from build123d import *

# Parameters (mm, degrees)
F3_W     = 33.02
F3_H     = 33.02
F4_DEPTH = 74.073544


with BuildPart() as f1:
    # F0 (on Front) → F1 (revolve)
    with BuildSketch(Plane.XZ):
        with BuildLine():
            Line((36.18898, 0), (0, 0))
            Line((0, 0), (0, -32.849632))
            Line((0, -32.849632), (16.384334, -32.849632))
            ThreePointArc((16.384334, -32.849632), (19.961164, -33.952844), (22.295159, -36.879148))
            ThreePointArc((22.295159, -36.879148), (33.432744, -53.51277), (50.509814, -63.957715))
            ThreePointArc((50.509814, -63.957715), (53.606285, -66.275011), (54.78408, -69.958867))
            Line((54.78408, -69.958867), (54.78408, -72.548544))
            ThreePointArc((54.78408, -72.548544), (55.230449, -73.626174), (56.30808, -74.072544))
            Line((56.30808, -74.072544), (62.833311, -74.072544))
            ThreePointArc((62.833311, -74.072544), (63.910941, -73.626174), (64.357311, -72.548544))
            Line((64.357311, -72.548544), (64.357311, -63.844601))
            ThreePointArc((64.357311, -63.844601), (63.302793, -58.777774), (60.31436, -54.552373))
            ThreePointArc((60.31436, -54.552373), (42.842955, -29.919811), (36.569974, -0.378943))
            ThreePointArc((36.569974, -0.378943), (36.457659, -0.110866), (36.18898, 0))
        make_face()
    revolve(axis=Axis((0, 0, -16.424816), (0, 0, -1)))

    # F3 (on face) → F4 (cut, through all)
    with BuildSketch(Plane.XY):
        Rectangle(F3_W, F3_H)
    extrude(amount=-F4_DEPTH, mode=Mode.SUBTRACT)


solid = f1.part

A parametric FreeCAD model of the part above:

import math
import FreeCAD as App
import Part
import Sketcher
Q = App.Units.Quantity

doc = App.newDocument("Part")
body = doc.addObject("PartDesign::Body", "Body")

sketch1 = body.newObject("Sketcher::SketchObject", "Sketch")
sketch1.AttachmentSupport = (doc.getObject("XZ_Plane"), [""])
sketch1.MapMode = "FlatFace"
sketch1.addGeometry([
    Part.LineSegment(App.Vector(36.19, 0, 0), App.Vector(0, 0, 0)),
    Part.LineSegment(App.Vector(0, 0, 0), App.Vector(0, -32.85, 0)),
    Part.LineSegment(App.Vector(0, -32.85, 0), App.Vector(16.38, -32.85, 0)),
    Part.ArcOfCircle(Part.Circle(App.Vector(16.38, -39.2, 0), App.Vector(0, 0, 1), 6.35), math.radians(21), math.radians(90)),
    Part.ArcOfCircle(Part.Circle(App.Vector(65.78, -19.81, 0), App.Vector(0, 0, 1), 46.72), math.radians(-159), math.radians(-109)),
    Part.ArcOfCircle(Part.Circle(App.Vector(48.43, -69.96, 0), App.Vector(0, 0, 1), 6.35), math.radians(0), math.radians(71)),
    Part.LineSegment(App.Vector(54.78, -69.96, 0), App.Vector(54.78, -72.55, 0)),
    Part.ArcOfCircle(Part.Circle(App.Vector(56.31, -72.55, 0), App.Vector(0, 0, 1), 1.52), math.radians(-180), math.radians(-90)),
    Part.LineSegment(App.Vector(56.31, -74.07, 0), App.Vector(62.83, -74.07, 0)),
    Part.ArcOfCircle(Part.Circle(App.Vector(62.83, -72.55, 0), App.Vector(0, 0, 1), 1.52), math.radians(-90), math.radians(0)),
    Part.LineSegment(App.Vector(64.36, -72.55, 0), App.Vector(64.36, -63.84, 0)),
    Part.ArcOfCircle(Part.Circle(App.Vector(51.66, -63.84, 0), App.Vector(0, 0, 1), 12.7), math.radians(0), math.radians(47)),
    Part.ArcOfCircle(Part.Circle(App.Vector(111.16, 0.02, 0), App.Vector(0, 0, 1), 74.59), math.radians(-180), math.radians(-133)),
    Part.ArcOfCircle(Part.Circle(App.Vector(36.19, -0.38, 0), App.Vector(0, 0, 1), 0.38), math.radians(0), math.radians(90)),
], False)
sketch1.addConstraint([
    Sketcher.Constraint("Coincident", 0, 2, 1, 1),
    Sketcher.Constraint("Coincident", 1, 2, 2, 1),
    Sketcher.Constraint("Tangent", 2, 2, 3, 2),
    Sketcher.Constraint("Tangent", 3, 1, 4, 1),
    Sketcher.Constraint("Tangent", 4, 2, 5, 2),
    Sketcher.Constraint("Tangent", 5, 1, 6, 1),
    Sketcher.Constraint("Tangent", 6, 2, 7, 1),
    Sketcher.Constraint("Tangent", 7, 2, 8, 1),
    Sketcher.Constraint("Tangent", 8, 2, 9, 1),
    Sketcher.Constraint("Tangent", 9, 2, 10, 1),
    Sketcher.Constraint("Tangent", 10, 2, 11, 1),
    Sketcher.Constraint("Tangent", 11, 2, 12, 2),
    Sketcher.Constraint("Tangent", 12, 1, 13, 1),
    Sketcher.Constraint("Tangent", 13, 2, 0, 1),
    Sketcher.Constraint("Horizontal", 0),
    Sketcher.Constraint("Vertical", 1),
    Sketcher.Constraint("Horizontal", 2),
    Sketcher.Constraint("Vertical", 6),
    Sketcher.Constraint("Horizontal", 8),
    Sketcher.Constraint("Vertical", 10),
    Sketcher.Constraint("Coincident", 0, 2, -1, 1),
    Sketcher.Constraint("Equal", 3, 5),
    Sketcher.Constraint("Equal", 7, 9),
    Sketcher.Constraint("Radius", 3, Q("0.25 in")),
    Sketcher.Constraint("Radius", 7, Q("0.06 in")),
    Sketcher.Constraint("Radius", 13, Q("0.015 in")),
    Sketcher.Constraint("DistanceX", 11, 3, 9, 3, Q("0.4400001 in")),
    Sketcher.Constraint("Radius", 4, 46.716772),
    Sketcher.Constraint("Radius", 12, 74.590937),
    Sketcher.Constraint("DistanceX", 3, 3, 9, 3, Q("1.8286998 in")),
    Sketcher.Constraint("DistanceY", 4, 3, 12, 1, Q("0.7649001 in")),
    Sketcher.Constraint("DistanceX", 0, 2, 0, 1, 36.18898),
    Sketcher.Constraint("DistanceX", 8, 1, 8, 2, 6.525231),
    Sketcher.Constraint("DistanceY", 10, 2, -1, 1, 63.844601),
    Sketcher.Constraint("DistanceX", 3, 3, 4, 3, 49.396599),
    Sketcher.Constraint("DistanceX", 13, 3, 5, 3, 12.245101),
    Sketcher.Constraint("DistanceY", 6, 2, 6, 1, 2.589677),
])
revolution = body.newObject("PartDesign::Revolution", "Revolution")
revolution.Profile = sketch1
revolution.ReferenceAxis = (sketch1, ["V_Axis"])
revolution.Angle = 360

sketch2 = body.newObject("Sketcher::SketchObject", "Sketch001")
sketch2.AttachmentSupport = (doc.getObject("XY_Plane"), [""])
sketch2.MapMode = "FlatFace"
sketch2.addGeometry([
    Part.LineSegment(App.Vector(-17, 17, 0), App.Vector(-17, -17, 0)),
    Part.LineSegment(App.Vector(-17, -17, 0), App.Vector(17, -17, 0)),
    Part.LineSegment(App.Vector(17, -17, 0), App.Vector(17, 17, 0)),
    Part.LineSegment(App.Vector(17, 17, 0), App.Vector(-17, 17, 0)),
], False)
sketch2.addConstraint([
    Sketcher.Constraint("Coincident", 0, 2, 1, 1),
    Sketcher.Constraint("Coincident", 1, 2, 2, 1),
    Sketcher.Constraint("Coincident", 2, 2, 3, 1),
    Sketcher.Constraint("Coincident", 3, 2, 0, 1),
    Sketcher.Constraint("Vertical", 0),
    Sketcher.Constraint("Horizontal", 1),
    Sketcher.Constraint("Vertical", 2),
    Sketcher.Constraint("Horizontal", 3),
    Sketcher.Constraint("Symmetric", 0, 2, 2, 2, -1, 1),
    Sketcher.Constraint("Equal", 3, 0),
    Sketcher.Constraint("DistanceX", 1, 1, 1, 2, Q("1.3 in")),
])
pocket1 = body.newObject("PartDesign::Pocket", "Pocket")
pocket1.Profile = sketch2
pocket1.Type = "ThroughAll"

doc.recompute()
